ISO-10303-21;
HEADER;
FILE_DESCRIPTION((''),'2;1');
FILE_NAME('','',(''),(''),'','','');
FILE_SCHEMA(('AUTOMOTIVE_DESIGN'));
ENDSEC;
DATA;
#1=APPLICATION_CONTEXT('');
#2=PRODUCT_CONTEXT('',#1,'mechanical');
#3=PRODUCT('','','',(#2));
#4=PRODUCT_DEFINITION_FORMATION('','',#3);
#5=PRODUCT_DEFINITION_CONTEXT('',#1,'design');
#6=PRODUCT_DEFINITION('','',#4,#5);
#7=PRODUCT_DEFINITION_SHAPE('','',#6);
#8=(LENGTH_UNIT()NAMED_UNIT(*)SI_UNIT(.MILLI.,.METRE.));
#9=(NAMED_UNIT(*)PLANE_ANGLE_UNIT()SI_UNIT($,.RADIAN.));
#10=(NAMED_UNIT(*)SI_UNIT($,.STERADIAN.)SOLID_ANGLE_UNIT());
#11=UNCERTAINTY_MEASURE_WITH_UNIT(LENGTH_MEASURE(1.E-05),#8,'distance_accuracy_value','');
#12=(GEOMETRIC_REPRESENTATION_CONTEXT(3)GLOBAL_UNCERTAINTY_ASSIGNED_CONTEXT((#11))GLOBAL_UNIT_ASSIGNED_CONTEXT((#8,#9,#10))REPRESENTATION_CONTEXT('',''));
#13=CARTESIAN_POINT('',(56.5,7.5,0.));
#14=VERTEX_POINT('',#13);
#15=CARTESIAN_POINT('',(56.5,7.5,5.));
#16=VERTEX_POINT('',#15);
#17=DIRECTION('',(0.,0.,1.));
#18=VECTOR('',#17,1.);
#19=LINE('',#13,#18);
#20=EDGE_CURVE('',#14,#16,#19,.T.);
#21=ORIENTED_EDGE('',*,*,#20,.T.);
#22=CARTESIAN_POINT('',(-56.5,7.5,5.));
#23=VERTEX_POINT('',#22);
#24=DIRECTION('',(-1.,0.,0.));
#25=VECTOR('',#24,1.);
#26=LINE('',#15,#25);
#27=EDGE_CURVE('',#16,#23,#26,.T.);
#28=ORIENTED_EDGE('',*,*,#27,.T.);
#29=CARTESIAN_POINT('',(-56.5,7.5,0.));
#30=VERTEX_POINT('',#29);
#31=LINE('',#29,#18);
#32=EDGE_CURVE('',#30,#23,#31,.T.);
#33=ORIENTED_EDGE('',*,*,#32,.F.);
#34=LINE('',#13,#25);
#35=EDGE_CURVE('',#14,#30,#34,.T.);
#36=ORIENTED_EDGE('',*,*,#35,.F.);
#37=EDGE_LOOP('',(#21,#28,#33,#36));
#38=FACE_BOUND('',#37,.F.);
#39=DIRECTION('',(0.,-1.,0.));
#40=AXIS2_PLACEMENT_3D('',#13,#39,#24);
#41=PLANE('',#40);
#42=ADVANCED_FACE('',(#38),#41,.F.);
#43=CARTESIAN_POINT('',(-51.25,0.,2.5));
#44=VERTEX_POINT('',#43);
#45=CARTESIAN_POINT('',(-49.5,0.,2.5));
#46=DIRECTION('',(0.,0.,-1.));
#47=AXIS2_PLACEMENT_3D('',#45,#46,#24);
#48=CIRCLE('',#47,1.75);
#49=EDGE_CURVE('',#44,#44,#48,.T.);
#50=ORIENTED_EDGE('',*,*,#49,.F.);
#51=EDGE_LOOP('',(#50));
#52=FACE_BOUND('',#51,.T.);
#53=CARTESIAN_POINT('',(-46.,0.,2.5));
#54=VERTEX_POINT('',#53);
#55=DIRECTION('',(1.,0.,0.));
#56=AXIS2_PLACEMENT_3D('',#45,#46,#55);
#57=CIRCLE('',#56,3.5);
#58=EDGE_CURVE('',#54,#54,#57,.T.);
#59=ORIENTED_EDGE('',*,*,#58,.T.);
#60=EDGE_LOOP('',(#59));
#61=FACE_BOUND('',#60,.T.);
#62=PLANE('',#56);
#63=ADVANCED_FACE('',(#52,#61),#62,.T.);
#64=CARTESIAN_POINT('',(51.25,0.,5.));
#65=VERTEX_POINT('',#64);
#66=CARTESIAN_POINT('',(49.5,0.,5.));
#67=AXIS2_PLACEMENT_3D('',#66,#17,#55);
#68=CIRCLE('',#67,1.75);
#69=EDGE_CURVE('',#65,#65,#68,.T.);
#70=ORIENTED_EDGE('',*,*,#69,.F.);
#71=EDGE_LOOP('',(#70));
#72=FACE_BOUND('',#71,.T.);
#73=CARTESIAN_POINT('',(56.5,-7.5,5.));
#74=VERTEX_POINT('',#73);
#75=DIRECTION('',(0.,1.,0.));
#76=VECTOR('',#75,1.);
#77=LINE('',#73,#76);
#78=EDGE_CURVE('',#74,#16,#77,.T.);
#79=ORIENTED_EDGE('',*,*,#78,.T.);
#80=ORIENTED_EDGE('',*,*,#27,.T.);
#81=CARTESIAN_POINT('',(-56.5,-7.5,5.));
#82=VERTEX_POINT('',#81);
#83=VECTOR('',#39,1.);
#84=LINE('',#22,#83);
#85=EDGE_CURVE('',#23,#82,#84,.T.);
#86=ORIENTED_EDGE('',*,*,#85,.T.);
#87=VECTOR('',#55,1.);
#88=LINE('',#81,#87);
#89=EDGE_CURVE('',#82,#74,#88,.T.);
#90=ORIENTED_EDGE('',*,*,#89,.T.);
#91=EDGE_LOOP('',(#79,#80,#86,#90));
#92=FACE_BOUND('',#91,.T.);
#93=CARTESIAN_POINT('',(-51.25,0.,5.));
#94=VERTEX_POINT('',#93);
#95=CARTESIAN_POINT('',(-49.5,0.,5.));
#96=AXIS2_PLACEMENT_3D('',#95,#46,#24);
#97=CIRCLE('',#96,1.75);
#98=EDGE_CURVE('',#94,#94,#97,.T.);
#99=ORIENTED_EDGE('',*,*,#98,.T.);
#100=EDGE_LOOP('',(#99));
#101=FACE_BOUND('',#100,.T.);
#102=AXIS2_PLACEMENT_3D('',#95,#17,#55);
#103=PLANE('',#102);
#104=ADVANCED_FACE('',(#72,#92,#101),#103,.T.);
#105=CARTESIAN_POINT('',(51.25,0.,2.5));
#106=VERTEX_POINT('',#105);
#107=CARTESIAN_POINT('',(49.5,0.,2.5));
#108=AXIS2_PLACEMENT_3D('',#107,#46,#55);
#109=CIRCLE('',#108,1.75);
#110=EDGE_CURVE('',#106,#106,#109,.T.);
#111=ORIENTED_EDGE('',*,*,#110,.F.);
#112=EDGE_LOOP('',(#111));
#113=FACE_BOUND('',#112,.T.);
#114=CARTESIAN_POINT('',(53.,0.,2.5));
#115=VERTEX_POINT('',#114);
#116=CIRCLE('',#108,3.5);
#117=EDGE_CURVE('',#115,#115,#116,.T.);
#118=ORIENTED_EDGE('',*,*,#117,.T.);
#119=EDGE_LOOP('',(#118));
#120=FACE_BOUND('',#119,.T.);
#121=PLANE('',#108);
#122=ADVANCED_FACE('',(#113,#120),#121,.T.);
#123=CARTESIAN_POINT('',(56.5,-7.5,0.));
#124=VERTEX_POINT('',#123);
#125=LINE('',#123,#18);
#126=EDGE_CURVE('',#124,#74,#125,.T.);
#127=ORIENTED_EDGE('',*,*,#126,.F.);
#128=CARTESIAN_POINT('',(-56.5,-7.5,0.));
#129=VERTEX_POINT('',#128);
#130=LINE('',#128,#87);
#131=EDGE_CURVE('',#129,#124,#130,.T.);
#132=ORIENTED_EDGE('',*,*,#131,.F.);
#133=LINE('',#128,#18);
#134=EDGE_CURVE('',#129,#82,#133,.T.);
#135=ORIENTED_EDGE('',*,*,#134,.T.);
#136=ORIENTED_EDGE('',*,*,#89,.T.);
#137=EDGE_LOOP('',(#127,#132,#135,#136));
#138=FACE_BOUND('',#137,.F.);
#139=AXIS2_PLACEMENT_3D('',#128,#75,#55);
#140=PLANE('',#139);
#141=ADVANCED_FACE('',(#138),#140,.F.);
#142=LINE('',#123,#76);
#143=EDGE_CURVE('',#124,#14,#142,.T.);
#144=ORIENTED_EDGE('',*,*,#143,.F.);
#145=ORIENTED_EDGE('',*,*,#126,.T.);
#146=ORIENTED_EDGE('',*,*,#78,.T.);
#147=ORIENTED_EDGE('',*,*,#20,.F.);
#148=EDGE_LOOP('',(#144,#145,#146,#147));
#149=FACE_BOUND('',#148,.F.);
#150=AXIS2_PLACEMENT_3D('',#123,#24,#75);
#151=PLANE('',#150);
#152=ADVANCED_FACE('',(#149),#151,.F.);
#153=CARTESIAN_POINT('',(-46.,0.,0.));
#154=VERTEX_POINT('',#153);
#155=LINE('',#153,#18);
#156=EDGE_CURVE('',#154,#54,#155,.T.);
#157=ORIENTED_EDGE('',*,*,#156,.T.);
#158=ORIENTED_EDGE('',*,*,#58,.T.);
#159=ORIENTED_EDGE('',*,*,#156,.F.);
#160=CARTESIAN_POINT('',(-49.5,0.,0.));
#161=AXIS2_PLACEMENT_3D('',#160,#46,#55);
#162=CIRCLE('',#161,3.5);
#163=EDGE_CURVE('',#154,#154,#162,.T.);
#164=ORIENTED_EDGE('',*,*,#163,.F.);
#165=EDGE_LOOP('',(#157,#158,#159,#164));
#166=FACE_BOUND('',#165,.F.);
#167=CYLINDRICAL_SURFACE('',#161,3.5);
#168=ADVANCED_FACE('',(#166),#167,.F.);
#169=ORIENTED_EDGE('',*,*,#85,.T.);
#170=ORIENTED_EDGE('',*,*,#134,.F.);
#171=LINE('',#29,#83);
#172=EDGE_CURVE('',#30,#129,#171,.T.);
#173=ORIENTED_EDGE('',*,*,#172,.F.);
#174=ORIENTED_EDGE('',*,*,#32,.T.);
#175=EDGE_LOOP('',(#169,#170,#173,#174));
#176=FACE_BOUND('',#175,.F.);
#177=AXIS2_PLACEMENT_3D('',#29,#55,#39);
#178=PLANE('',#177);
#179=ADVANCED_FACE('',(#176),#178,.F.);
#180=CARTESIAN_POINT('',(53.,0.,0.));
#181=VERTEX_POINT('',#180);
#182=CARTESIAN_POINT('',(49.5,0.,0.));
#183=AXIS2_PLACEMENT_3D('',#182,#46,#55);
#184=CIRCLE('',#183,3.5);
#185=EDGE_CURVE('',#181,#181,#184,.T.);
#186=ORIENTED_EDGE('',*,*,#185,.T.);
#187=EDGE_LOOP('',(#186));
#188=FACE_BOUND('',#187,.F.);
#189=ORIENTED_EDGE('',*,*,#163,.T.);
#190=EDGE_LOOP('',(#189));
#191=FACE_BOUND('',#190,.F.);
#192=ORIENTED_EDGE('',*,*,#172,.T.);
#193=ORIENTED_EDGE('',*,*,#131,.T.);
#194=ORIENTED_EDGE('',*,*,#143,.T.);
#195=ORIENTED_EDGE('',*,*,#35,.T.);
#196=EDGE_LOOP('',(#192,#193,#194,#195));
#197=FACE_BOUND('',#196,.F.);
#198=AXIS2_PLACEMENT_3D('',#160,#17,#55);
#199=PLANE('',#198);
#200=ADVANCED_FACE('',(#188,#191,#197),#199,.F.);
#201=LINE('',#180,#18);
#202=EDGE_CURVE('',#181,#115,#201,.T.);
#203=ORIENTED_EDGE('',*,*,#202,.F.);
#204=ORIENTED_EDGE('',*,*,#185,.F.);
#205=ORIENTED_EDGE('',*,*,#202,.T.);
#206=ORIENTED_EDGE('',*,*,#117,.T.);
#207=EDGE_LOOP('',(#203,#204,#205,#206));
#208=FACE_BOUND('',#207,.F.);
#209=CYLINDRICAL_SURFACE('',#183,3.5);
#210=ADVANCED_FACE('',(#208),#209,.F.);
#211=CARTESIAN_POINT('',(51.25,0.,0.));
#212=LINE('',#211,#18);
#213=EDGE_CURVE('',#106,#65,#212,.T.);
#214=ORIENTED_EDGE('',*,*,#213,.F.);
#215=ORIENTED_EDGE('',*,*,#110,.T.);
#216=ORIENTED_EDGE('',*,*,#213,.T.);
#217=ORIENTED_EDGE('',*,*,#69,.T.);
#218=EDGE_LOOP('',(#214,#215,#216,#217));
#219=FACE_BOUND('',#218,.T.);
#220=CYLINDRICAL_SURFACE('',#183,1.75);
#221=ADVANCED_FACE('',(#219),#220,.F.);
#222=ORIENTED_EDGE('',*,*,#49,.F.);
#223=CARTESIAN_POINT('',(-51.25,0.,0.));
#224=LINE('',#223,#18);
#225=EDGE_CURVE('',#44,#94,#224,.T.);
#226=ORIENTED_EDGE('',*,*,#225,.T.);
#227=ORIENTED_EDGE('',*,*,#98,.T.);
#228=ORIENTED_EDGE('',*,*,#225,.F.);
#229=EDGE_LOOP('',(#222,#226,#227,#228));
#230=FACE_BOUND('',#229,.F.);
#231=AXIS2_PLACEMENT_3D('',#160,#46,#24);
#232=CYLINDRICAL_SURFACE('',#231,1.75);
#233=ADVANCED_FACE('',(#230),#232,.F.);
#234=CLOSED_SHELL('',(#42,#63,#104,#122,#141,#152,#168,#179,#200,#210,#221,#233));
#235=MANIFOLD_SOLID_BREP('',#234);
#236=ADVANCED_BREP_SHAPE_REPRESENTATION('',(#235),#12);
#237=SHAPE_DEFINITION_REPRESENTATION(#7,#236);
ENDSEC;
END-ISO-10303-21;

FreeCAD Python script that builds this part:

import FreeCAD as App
import Part
import Sketcher

V = App.Vector

doc = App.newDocument("Part")
body = doc.addObject("PartDesign::Body", "Body")

# Sketch on XY plane
sketch1 = body.newObject("Sketcher::SketchObject", "Sketch")
sketch1.AttachmentSupport = (doc.getObject("XY_Plane"), [""])
sketch1.MapMode = "FlatFace"
sketch1.addGeometry(Part.LineSegment(V(-56.5, -7.5, 0), V(56.5, -7.5, 0)), False)
sketch1.addGeometry(Part.LineSegment(V(56.5, -7.5, 0), V(56.5, 7.5, 0)), False)
sketch1.addGeometry(Part.LineSegment(V(56.5, 7.5, 0), V(-56.5, 7.5, 0)), False)
sketch1.addGeometry(Part.LineSegment(V(-56.5, 7.5, 0), V(-56.5, -7.5, 0)), False)
sketch1.addGeometry(Part.Circle(V(-49.5, 0, 0), V(0, 0, 1), 1.8), False)
sketch1.addGeometry(Part.Circle(V(49.5, 0, 0), V(0, 0, 1), 1.8), False)
sketch1.addConstraint(Sketcher.Constraint("Coincident", 0, 2, 1, 1))
sketch1.addConstraint(Sketcher.Constraint("Coincident", 1, 2, 2, 1))
sketch1.addConstraint(Sketcher.Constraint("Coincident", 2, 2, 3, 1))
sketch1.addConstraint(Sketcher.Constraint("Coincident", 3, 2, 0, 1))
sketch1.addConstraint(Sketcher.Constraint("Horizontal", 0))
sketch1.addConstraint(Sketcher.Constraint("Vertical", 1))
sketch1.addConstraint(Sketcher.Constraint("Horizontal", 2))
sketch1.addConstraint(Sketcher.Constraint("Vertical", 3))
sketch1.addConstraint(Sketcher.Constraint("Equal", 4, 5))
sketch1.addConstraint(Sketcher.Constraint("Symmetric", 4, 3, 5, 3, -1, 1))
sketch1.addConstraint(Sketcher.Constraint("Symmetric", 0, 2, 2, 2, -1, 1))
sketch1.addConstraint(Sketcher.Constraint("PointOnObject", 4, 3, -1))
sketch1.addConstraint(Sketcher.Constraint("Diameter", 4, 3.5))
sketch1.addConstraint(Sketcher.Constraint("DistanceX", 0, 1, 0, 2, 113.0))
sketch1.addConstraint(Sketcher.Constraint("DistanceY", 1, 1, 1, 2, 15.0))
sketch1.addConstraint(Sketcher.Constraint("DistanceX", 4, 3, 5, 3, 99.0))
pad1 = body.newObject("PartDesign::Pad", "Pad")
pad1.Profile = sketch1
pad1.Length = 5

# Sketch on XY plane
sketch2 = body.newObject("Sketcher::SketchObject", "Sketch001")
sketch2.AttachmentSupport = (doc.getObject("XY_Plane"), [""])
sketch2.MapMode = "FlatFace"
sketch2.addGeometry(Part.Circle(V(-49.5, 0, 0), V(0, 0, 1), 3.5), False)
sketch2.addGeometry(Part.Circle(V(49.5, 0, 0), V(0, 0, 1), 3.5), False)
sketch2.addConstraint(Sketcher.Constraint("Equal", 0, 1))
sketch2.addConstraint(Sketcher.Constraint("Symmetric", 0, 3, 1, 3, -1, 1))
sketch2.addConstraint(Sketcher.Constraint("PointOnObject", 0, 3, -1))
sketch2.addConstraint(Sketcher.Constraint("Diameter", 0, 7.0))
sketch2.addConstraint(Sketcher.Constraint("DistanceX", 0, 3, 1, 3, 99.0))
pocket1 = body.newObject("PartDesign::Pocket", "Pocket")
pocket1.Profile = sketch2
pocket1.Length = 2.5
pocket1.Reversed = True

doc.recompute()
